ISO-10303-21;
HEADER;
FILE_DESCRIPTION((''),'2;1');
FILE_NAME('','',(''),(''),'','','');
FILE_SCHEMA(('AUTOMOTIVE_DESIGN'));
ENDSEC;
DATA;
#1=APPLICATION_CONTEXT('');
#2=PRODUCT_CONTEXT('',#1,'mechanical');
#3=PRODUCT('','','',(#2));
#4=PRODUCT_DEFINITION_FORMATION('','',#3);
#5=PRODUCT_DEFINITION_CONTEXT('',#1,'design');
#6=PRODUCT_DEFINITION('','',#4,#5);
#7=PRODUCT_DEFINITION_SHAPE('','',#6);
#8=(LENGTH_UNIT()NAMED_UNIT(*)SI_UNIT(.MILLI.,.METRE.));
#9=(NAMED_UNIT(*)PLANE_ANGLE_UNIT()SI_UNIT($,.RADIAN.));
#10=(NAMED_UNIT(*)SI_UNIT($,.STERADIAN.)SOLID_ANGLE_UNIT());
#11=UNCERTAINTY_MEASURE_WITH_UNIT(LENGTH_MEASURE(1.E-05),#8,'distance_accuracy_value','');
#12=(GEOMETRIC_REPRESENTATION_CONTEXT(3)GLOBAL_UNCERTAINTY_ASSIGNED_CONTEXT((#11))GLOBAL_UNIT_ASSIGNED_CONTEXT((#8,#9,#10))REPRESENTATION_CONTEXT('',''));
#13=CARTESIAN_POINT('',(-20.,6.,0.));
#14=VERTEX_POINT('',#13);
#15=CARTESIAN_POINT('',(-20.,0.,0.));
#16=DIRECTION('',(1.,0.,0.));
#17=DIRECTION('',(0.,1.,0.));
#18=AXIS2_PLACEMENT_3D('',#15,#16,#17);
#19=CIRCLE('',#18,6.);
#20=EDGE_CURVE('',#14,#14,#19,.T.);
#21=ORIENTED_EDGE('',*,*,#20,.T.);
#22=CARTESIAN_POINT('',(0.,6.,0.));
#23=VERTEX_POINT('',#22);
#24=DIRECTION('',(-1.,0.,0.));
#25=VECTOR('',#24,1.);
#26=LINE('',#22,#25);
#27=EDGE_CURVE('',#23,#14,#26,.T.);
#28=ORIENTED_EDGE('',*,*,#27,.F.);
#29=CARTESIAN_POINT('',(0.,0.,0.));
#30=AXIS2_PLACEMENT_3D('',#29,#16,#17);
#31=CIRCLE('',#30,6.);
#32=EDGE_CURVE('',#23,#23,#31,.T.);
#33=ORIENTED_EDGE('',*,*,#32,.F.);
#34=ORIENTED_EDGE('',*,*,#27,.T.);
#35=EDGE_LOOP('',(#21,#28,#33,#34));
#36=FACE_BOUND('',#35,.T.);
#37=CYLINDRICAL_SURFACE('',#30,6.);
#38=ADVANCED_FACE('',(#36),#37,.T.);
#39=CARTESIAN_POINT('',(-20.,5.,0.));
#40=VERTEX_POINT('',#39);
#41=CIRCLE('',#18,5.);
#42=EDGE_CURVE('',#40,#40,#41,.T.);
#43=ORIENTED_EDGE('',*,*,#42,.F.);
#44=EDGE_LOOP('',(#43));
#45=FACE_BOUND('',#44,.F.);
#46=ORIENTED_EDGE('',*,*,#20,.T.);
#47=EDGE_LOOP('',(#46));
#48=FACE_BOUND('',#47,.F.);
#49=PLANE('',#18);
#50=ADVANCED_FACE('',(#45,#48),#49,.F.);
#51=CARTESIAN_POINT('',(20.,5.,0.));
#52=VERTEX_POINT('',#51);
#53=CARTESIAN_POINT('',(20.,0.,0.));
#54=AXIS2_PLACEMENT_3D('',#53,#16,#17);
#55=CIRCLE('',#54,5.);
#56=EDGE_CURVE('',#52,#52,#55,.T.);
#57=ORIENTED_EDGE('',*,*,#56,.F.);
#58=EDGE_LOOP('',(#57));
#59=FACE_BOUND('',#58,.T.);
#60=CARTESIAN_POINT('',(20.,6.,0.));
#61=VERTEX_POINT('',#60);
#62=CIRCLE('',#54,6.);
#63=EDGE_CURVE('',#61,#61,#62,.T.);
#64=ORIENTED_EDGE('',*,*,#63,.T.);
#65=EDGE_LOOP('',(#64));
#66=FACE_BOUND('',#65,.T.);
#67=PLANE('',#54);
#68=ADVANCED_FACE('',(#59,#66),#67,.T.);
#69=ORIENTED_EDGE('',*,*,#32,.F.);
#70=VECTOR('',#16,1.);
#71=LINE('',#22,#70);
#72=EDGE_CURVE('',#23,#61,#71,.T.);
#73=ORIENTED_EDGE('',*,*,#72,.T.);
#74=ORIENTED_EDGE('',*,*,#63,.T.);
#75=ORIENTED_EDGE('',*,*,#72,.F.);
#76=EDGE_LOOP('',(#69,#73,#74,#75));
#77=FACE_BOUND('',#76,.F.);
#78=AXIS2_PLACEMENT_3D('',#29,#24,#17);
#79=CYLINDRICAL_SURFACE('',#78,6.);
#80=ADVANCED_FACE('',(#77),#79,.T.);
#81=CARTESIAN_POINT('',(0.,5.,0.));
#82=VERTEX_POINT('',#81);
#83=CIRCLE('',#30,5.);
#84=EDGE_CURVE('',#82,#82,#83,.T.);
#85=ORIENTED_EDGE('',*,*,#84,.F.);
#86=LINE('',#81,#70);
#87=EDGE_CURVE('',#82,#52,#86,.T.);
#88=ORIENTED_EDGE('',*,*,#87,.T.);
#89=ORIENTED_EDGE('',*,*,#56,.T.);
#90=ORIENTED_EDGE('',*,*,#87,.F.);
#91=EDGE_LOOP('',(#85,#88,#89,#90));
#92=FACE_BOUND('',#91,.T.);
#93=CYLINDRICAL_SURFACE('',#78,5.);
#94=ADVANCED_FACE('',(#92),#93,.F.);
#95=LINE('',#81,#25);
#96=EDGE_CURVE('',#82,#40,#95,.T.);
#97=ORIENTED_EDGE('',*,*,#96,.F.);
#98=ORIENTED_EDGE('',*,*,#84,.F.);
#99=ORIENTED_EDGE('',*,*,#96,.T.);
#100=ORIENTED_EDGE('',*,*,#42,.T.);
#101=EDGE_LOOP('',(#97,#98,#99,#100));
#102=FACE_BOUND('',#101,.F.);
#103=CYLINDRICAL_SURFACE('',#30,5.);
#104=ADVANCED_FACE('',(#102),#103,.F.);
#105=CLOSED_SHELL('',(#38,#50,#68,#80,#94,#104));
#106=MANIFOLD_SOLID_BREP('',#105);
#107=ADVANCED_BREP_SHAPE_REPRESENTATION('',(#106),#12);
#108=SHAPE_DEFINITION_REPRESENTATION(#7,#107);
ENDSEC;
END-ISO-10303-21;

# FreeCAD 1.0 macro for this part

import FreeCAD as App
import Part
import Sketcher

doc = App.newDocument("Part")
body = doc.addObject("PartDesign::Body", "Body")

# Sketch on YZ plane
sketch1 = body.newObject("Sketcher::SketchObject", "Sketch")
sketch1.AttachmentSupport = (doc.getObject("YZ_Plane"), [""])
sketch1.MapMode = "FlatFace"
sketch1.addGeometry([
    Part.Circle(App.Vector(0, 0, 0), App.Vector(0, 0, 1), 6),
    Part.Circle(App.Vector(0, 0, 0), App.Vector(0, 0, 1), 5),
], False)
sketch1.addConstraint([
    Sketcher.Constraint("Coincident", 0, 3, -1, 1),
    Sketcher.Constraint("Coincident", 1, 3, -1, 1),
    Sketcher.Constraint("Diameter", 0, 12.0),
    Sketcher.Constraint("Diameter", 1, 10.0),
])
pad1 = body.newObject("PartDesign::Pad", "Pad")
pad1.Profile = sketch1
pad1.Length = 40
pad1.Midplane = True

doc.recompute()
